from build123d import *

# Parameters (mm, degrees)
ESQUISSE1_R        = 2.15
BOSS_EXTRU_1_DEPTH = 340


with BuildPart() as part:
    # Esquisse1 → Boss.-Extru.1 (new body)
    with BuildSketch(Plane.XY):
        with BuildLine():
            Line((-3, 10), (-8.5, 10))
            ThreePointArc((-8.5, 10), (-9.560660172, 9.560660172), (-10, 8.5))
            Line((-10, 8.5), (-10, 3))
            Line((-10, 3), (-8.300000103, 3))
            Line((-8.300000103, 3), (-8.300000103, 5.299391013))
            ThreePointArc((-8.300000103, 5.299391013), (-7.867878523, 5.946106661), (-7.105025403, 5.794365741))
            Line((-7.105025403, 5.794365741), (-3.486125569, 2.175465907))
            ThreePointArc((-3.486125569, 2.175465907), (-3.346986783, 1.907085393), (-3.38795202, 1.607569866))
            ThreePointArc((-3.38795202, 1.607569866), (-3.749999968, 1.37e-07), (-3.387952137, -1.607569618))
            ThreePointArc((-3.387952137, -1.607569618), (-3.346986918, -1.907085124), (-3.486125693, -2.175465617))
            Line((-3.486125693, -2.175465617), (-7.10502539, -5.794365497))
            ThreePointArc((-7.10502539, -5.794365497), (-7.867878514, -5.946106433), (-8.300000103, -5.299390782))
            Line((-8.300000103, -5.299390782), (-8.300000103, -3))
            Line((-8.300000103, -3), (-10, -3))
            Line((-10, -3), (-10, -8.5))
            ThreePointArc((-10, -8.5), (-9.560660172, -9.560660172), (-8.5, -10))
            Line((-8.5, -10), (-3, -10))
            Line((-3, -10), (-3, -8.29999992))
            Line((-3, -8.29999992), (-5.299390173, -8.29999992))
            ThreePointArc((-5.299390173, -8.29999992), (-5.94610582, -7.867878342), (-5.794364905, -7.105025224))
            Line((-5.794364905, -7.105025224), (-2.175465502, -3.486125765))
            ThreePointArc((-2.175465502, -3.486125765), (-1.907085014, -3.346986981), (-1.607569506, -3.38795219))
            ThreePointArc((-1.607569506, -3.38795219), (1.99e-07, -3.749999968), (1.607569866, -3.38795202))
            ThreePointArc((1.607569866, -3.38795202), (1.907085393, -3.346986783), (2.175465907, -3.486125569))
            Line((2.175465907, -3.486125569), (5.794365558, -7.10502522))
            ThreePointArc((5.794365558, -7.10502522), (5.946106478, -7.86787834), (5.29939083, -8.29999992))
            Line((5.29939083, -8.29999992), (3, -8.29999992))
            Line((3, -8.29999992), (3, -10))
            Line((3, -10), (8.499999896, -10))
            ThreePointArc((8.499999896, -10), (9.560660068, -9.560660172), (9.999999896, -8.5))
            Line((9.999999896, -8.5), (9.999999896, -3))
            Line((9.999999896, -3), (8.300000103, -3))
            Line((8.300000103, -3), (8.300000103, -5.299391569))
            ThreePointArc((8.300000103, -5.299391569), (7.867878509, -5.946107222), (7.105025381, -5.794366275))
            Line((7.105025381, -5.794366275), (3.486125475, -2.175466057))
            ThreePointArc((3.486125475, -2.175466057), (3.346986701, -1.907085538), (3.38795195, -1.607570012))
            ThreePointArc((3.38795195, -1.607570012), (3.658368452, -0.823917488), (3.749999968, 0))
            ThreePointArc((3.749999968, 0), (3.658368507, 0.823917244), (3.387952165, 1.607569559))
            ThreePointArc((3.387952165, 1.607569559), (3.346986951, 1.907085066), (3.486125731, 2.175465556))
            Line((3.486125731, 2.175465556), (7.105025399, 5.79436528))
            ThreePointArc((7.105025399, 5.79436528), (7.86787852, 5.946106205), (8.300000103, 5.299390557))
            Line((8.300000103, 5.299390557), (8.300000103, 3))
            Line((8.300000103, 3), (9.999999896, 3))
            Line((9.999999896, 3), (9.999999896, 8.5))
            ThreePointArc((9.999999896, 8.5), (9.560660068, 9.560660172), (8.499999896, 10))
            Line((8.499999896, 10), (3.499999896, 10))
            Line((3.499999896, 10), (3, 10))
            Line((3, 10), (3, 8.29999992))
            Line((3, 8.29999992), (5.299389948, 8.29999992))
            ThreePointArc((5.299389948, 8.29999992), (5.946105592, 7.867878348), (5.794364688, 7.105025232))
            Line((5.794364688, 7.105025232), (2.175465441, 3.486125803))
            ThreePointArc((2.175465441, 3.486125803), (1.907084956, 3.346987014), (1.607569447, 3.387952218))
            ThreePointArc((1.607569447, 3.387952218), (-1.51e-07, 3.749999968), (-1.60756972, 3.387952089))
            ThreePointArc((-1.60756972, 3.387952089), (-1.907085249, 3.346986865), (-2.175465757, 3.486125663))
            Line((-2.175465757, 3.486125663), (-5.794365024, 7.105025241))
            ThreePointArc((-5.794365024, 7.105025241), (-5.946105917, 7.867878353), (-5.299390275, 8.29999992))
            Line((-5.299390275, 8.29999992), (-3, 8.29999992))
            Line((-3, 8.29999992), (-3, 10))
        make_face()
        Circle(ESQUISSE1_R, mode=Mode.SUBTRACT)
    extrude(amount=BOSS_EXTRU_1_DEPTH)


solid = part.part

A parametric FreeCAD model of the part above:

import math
import FreeCAD as App
import Part
import Sketcher

doc = App.newDocument("Part")
body = doc.addObject("PartDesign::Body", "Body")

# Sketch on XY plane
sketch1 = body.newObject("Sketcher::SketchObject", "Sketch")
sketch1.AttachmentSupport = (doc.getObject("XY_Plane"), [""])
sketch1.MapMode = "FlatFace"
sketch1.addGeometry([
    Part.LineSegment(App.Vector(-3, 10, 0), App.Vector(-8.5, 10, 0)),  # 0
    Part.ArcOfCircle(Part.Circle(App.Vector(-8.5, 8.5, 0), App.Vector(0, 0, 1), 1.5), math.radians(90), math.radians(180)),  # 1
    Part.LineSegment(App.Vector(-10, 8.5, 0), App.Vector(-10, 3, 0)),  # 2
    Part.LineSegment(App.Vector(-10, 3, 0), App.Vector(-8.3, 3, 0)),  # 3
    Part.LineSegment(App.Vector(-8.3, 3, 0), App.Vector(-8.3, 5.3, 0)),  # 4
    Part.ArcOfCircle(Part.Circle(App.Vector(-7.6, 5.3, 0), App.Vector(0, 0, 1), 0.7), math.radians(45), math.radians(180)),  # 5
    Part.LineSegment(App.Vector(-7.11, 5.79, 0), App.Vector(-3.49, 2.18, 0)),  # 6
    Part.ArcOfCircle(Part.Circle(App.Vector(-3.84, 1.82, 0), App.Vector(0, 0, 1), 0.5), math.radians(-25), math.radians(45)),  # 7
    Part.ArcOfCircle(Part.Circle(App.Vector(0, 0, 0), App.Vector(0, 0, 1), 3.75), math.radians(155), math.radians(205)),  # 8
    Part.ArcOfCircle(Part.Circle(App.Vector(-3.84, -1.82, 0), App.Vector(0, 0, 1), 0.5), math.radians(-45), math.radians(25)),  # 9
    Part.LineSegment(App.Vector(-3.49, -2.18, 0), App.Vector(-7.11, -5.79, 0)),  # 10
    Part.ArcOfCircle(Part.Circle(App.Vector(-7.6, -5.3, 0), App.Vector(0, 0, 1), 0.7), math.radians(180), math.radians(315)),  # 11
    Part.LineSegment(App.Vector(-8.3, -5.3, 0), App.Vector(-8.3, -3, 0)),  # 12
    Part.LineSegment(App.Vector(-8.3, -3, 0), App.Vector(-10, -3, 0)),  # 13
    Part.LineSegment(App.Vector(-10, -3, 0), App.Vector(-10, -8.5, 0)),  # 14
    Part.ArcOfCircle(Part.Circle(App.Vector(-8.5, -8.5, 0), App.Vector(0, 0, 1), 1.5), math.radians(180), math.radians(270)),  # 15
    Part.LineSegment(App.Vector(-8.5, -10, 0), App.Vector(-3, -10, 0)),  # 16
    Part.LineSegment(App.Vector(-3, -10, 0), App.Vector(-3, -8.3, 0)),  # 17
    Part.LineSegment(App.Vector(-3, -8.3, 0), App.Vector(-5.3, -8.3, 0)),  # 18
    Part.ArcOfCircle(Part.Circle(App.Vector(-5.3, -7.6, 0), App.Vector(0, 0, 1), 0.7), math.radians(135), math.radians(270)),  # 19
    Part.LineSegment(App.Vector(-5.79, -7.11, 0), App.Vector(-2.18, -3.49, 0)),  # 20
    Part.ArcOfCircle(Part.Circle(App.Vector(-1.82, -3.84, 0), App.Vector(0, 0, 1), 0.5), math.radians(65), math.radians(135)),  # 21
    Part.ArcOfCircle(Part.Circle(App.Vector(0, 0, 0), App.Vector(0, 0, 1), 3.75), math.radians(-115), math.radians(-65)),  # 22
    Part.ArcOfCircle(Part.Circle(App.Vector(1.82, -3.84, 0), App.Vector(0, 0, 1), 0.5), math.radians(45), math.radians(115)),  # 23
    Part.LineSegment(App.Vector(2.18, -3.49, 0), App.Vector(5.79, -7.11, 0)),  # 24
    Part.ArcOfCircle(Part.Circle(App.Vector(5.3, -7.6, 0), App.Vector(0, 0, 1), 0.7), math.radians(-90), math.radians(45)),  # 25
    Part.LineSegment(App.Vector(5.3, -8.3, 0), App.Vector(3, -8.3, 0)),  # 26
    Part.LineSegment(App.Vector(3, -8.3, 0), App.Vector(3, -10, 0)),  # 27
    Part.LineSegment(App.Vector(3, -10, 0), App.Vector(8.5, -10, 0)),  # 28
    Part.ArcOfCircle(Part.Circle(App.Vector(8.5, -8.5, 0), App.Vector(0, 0, 1), 1.5), math.radians(-90), math.radians(0)),  # 29
    Part.LineSegment(App.Vector(10, -8.5, 0), App.Vector(10, -3, 0)),  # 30
    Part.LineSegment(App.Vector(10, -3, 0), App.Vector(8.3, -3, 0)),  # 31
    Part.LineSegment(App.Vector(8.3, -3, 0), App.Vector(8.3, -5.3, 0)),  # 32
    Part.ArcOfCircle(Part.Circle(App.Vector(7.6, -5.3, 0), App.Vector(0, 0, 1), 0.7), math.radians(-135), math.radians(0)),  # 33
    Part.LineSegment(App.Vector(7.11, -5.79, 0), App.Vector(3.49, -2.18, 0)),  # 34
    Part.ArcOfCircle(Part.Circle(App.Vector(3.84, -1.82, 0), App.Vector(0, 0, 1), 0.5), math.radians(155), math.radians(225)),  # 35
    Part.ArcOfCircle(Part.Circle(App.Vector(0, 0, 0), App.Vector(0, 0, 1), 3.75), math.radians(-25), math.radians(0)),  # 36
    Part.ArcOfCircle(Part.Circle(App.Vector(0, 0, 0), App.Vector(0, 0, 1), 3.75), math.radians(0), math.radians(25)),  # 37
    Part.ArcOfCircle(Part.Circle(App.Vector(3.84, 1.82, 0), App.Vector(0, 0, 1), 0.5), math.radians(135), math.radians(205)),  # 38
    Part.LineSegment(App.Vector(3.49, 2.18, 0), App.Vector(7.11, 5.79, 0)),  # 39
    Part.ArcOfCircle(Part.Circle(App.Vector(7.6, 5.3, 0), App.Vector(0, 0, 1), 0.7), math.radians(0), math.radians(135)),  # 40
    Part.LineSegment(App.Vector(8.3, 5.3, 0), App.Vector(8.3, 3, 0)),  # 41
    Part.LineSegment(App.Vector(8.3, 3, 0), App.Vector(10, 3, 0)),  # 42
    Part.LineSegment(App.Vector(10, 3, 0), App.Vector(10, 8.5, 0)),  # 43
    Part.ArcOfCircle(Part.Circle(App.Vector(8.5, 8.5, 0), App.Vector(0, 0, 1), 1.5), math.radians(0), math.radians(90)),  # 44
    Part.LineSegment(App.Vector(8.5, 10, 0), App.Vector(3, 10, 0)),  # 45
    Part.LineSegment(App.Vector(3, 10, 0), App.Vector(3, 8.3, 0)),  # 46
    Part.LineSegment(App.Vector(3, 8.3, 0), App.Vector(5.3, 8.3, 0)),  # 47
    Part.ArcOfCircle(Part.Circle(App.Vector(5.3, 7.6, 0), App.Vector(0, 0, 1), 0.7), math.radians(-45), math.radians(90)),  # 48
    Part.LineSegment(App.Vector(5.79, 7.11, 0), App.Vector(2.18, 3.49, 0)),  # 49
    Part.ArcOfCircle(Part.Circle(App.Vector(1.82, 3.84, 0), App.Vector(0, 0, 1), 0.5), math.radians(-115), math.radians(-45)),  # 50
    Part.ArcOfCircle(Part.Circle(App.Vector(0, 0, 0), App.Vector(0, 0, 1), 3.75), math.radians(65), math.radians(115)),  # 51
    Part.ArcOfCircle(Part.Circle(App.Vector(-1.82, 3.84, 0), App.Vector(0, 0, 1), 0.5), math.radians(-135), math.radians(-65)),  # 52
    Part.LineSegment(App.Vector(-2.18, 3.49, 0), App.Vector(-5.79, 7.11, 0)),  # 53
    Part.ArcOfCircle(Part.Circle(App.Vector(-5.3, 7.6, 0), App.Vector(0, 0, 1), 0.7), math.radians(90), math.radians(225)),  # 54
    Part.LineSegment(App.Vector(-5.3, 8.3, 0), App.Vector(-3, 8.3, 0)),  # 55
    Part.LineSegment(App.Vector(-3, 8.3, 0), App.Vector(-3, 10, 0)),  # 56
    Part.Circle(App.Vector(0, 0, 0), App.Vector(0, 0, 1), 2.15),  # 57
], False)
sketch1.addConstraint([
    Sketcher.Constraint("Tangent", 0, 2, 1, 1),
    Sketcher.Constraint("Tangent", 1, 2, 2, 1),
    Sketcher.Constraint("Coincident", 2, 2, 3, 1),
    Sketcher.Constraint("Coincident", 3, 2, 4, 1),
    Sketcher.Constraint("Tangent", 4, 2, 5, 2),
    Sketcher.Constraint("Tangent", 5, 1, 6, 1),
    Sketcher.Constraint("Tangent", 6, 2, 7, 2),
    Sketcher.Constraint("Tangent", 7, 1, 8, 1),
    Sketcher.Constraint("Tangent", 8, 2, 9, 2),
    Sketcher.Constraint("Tangent", 9, 1, 10, 1),
    Sketcher.Constraint("Tangent", 10, 2, 11, 2),
    Sketcher.Constraint("Tangent", 11, 1, 12, 1),
    Sketcher.Constraint("Coincident", 12, 2, 13, 1),
    Sketcher.Constraint("Coincident", 13, 2, 14, 1),
    Sketcher.Constraint("Tangent", 14, 2, 15, 1),
    Sketcher.Constraint("Tangent", 15, 2, 16, 1),
    Sketcher.Constraint("Coincident", 16, 2, 17, 1),
    Sketcher.Constraint("Coincident", 17, 2, 18, 1),
    Sketcher.Constraint("Tangent", 18, 2, 19, 2),
    Sketcher.Constraint("Tangent", 19, 1, 20, 1),
    Sketcher.Constraint("Tangent", 20, 2, 21, 2),
    Sketcher.Constraint("Tangent", 21, 1, 22, 1),
    Sketcher.Constraint("Tangent", 22, 2, 23, 2),
    Sketcher.Constraint("Tangent", 23, 1, 24, 1),
    Sketcher.Constraint("Tangent", 24, 2, 25, 2),
    Sketcher.Constraint("Tangent", 25, 1, 26, 1),
    Sketcher.Constraint("Coincident", 26, 2, 27, 1),
    Sketcher.Constraint("Coincident", 27, 2, 28, 1),
    Sketcher.Constraint("Tangent", 28, 2, 29, 1),
    Sketcher.Constraint("Tangent", 29, 2, 30, 1),
    Sketcher.Constraint("Coincident", 30, 2, 31, 1),
    Sketcher.Constraint("Coincident", 31, 2, 32, 1),
    Sketcher.Constraint("Tangent", 32, 2, 33, 2),
    Sketcher.Constraint("Tangent", 33, 1, 34, 1),
    Sketcher.Constraint("Tangent", 34, 2, 35, 2),
    Sketcher.Constraint("Tangent", 35, 1, 36, 1),
    Sketcher.Constraint("Tangent", 36, 2, 37, 1),
    Sketcher.Constraint("Tangent", 37, 2, 38, 2),
    Sketcher.Constraint("Tangent", 38, 1, 39, 1),
    Sketcher.Constraint("Tangent", 39, 2, 40, 2),
    Sketcher.Constraint("Tangent", 40, 1, 41, 1),
    Sketcher.Constraint("Coincident", 41, 2, 42, 1),
    Sketcher.Constraint("Coincident", 42, 2, 43, 1),
    Sketcher.Constraint("Tangent", 43, 2, 44, 1),
    Sketcher.Constraint("Tangent", 44, 2, 45, 1),
    Sketcher.Constraint("Coincident", 45, 2, 46, 1),
    Sketcher.Constraint("Coincident", 46, 2, 47, 1),
    Sketcher.Constraint("Tangent", 47, 2, 48, 2),
    Sketcher.Constraint("Tangent", 48, 1, 49, 1),
    Sketcher.Constraint("Tangent", 49, 2, 50, 2),
    Sketcher.Constraint("Tangent", 50, 1, 51, 1),
    Sketcher.Constraint("Tangent", 51, 2, 52, 2),
    Sketcher.Constraint("Tangent", 52, 1, 53, 1),
    Sketcher.Constraint("Tangent", 53, 2, 54, 2),
    Sketcher.Constraint("Tangent", 54, 1, 55, 1),
    Sketcher.Constraint("Coincident", 55, 2, 56, 1),
    Sketcher.Constraint("Coincident", 56, 2, 0, 1),
    Sketcher.Constraint("Horizontal", 0),
    Sketcher.Constraint("Vertical", 2),
    Sketcher.Constraint("Horizontal", 3),
    Sketcher.Constraint("Vertical", 4),
    Sketcher.Constraint("Vertical", 12),
    Sketcher.Constraint("Horizontal", 13),
    Sketcher.Constraint("Vertical", 14),
    Sketcher.Constraint("Horizontal", 16),
    Sketcher.Constraint("Vertical", 17),
    Sketcher.Constraint("Horizontal", 18),
    Sketcher.Constraint("Horizontal", 26),
    Sketcher.Constraint("Vertical", 27),
    Sketcher.Constraint("Horizontal", 28),
    Sketcher.Constraint("Vertical", 30),
    Sketcher.Constraint("Horizontal", 31),
    Sketcher.Constraint("Vertical", 32),
    Sketcher.Constraint("Vertical", 41),
    Sketcher.Constraint("Horizontal", 42),
    Sketcher.Constraint("Vertical", 43),
    Sketcher.Constraint("Horizontal", 45),
    Sketcher.Constraint("Vertical", 46),
    Sketcher.Constraint("Horizontal", 47),
    Sketcher.Constraint("Horizontal", 55),
    Sketcher.Constraint("Vertical", 56),
    Sketcher.Constraint("Coincident", 8, 3, -1, 1),
    Sketcher.Constraint("Coincident", 22, 3, -1, 1),
    Sketcher.Constraint("Coincident", 36, 3, -1, 1),
    Sketcher.Constraint("Coincident", 51, 3, -1, 1),
    Sketcher.Constraint("Coincident", 57, 3, -1, 1),
    Sketcher.Constraint("Equal", 7, 9),
    Sketcher.Constraint("Equal", 5, 11),
    Sketcher.Constraint("Equal", 1, 15),
    Sketcher.Constraint("Equal", 11, 19),
    Sketcher.Constraint("Equal", 9, 21),
    Sketcher.Constraint("Equal", 8, 22),
    Sketcher.Constraint("Equal", 21, 23),
    Sketcher.Constraint("Equal", 19, 25),
    Sketcher.Constraint("Equal", 15, 29),
    Sketcher.Constraint("Equal", 25, 33),
    Sketcher.Constraint("Equal", 23, 35),
    Sketcher.Constraint("Equal", 22, 36),
    Sketcher.Constraint("Equal", 36, 37),
    Sketcher.Constraint("Equal", 35, 38),
    Sketcher.Constraint("Equal", 33, 40),
    Sketcher.Constraint("Equal", 29, 44),
    Sketcher.Constraint("Equal", 40, 48),
    Sketcher.Constraint("Equal", 38, 50),
    Sketcher.Constraint("Equal", 37, 51),
    Sketcher.Constraint("Equal", 50, 52),
    Sketcher.Constraint("Equal", 48, 54),
    Sketcher.Constraint("Symmetric", 1, 3, 29, 3, -1, 1),
    Sketcher.Constraint("Symmetric", 5, 3, 33, 3, -1, 1),
    Sketcher.Constraint("Symmetric", 11, 3, 40, 3, -1, 1),
    Sketcher.Constraint("Symmetric", 15, 3, 44, 3, -1, 1),
    Sketcher.Constraint("Symmetric", 19, 3, 48, 3, -1, 1),
    Sketcher.Constraint("Symmetric", 25, 3, 54, 3, -1, 1),
    Sketcher.Constraint("Symmetric", 19, 3, 25, 3, -2),
    Sketcher.Constraint("Symmetric", 15, 3, 29, 3, -2),
    Sketcher.Constraint("Symmetric", 11, 3, 33, 3, -2),
    Sketcher.Constraint("PointOnObject", 36, 2, -1),
    Sketcher.Constraint("Perpendicular", 6, 10),
    Sketcher.Constraint("Parallel", 10, 20),
    Sketcher.Constraint("Perpendicular", 20, 24),
    Sketcher.Constraint("Parallel", 24, 34),
    Sketcher.Constraint("Perpendicular", 34, 39),
    Sketcher.Constraint("Parallel", 39, 49),
    Sketcher.Constraint("Perpendicular", 49, 53),
    Sketcher.Constraint("Horizontal", 21, 3, 23, 3),
    Sketcher.Constraint("Horizontal", 13, 2, 30, 2),
    Sketcher.Constraint("Horizontal", 3, 2, 41, 2),
    Sketcher.Constraint("Vertical", 27, 2, 45, 2),
    Sketcher.Constraint("Vertical", 17, 2, 55, 2),
    Sketcher.Constraint("Equal", 18, 26),
    Sketcher.Constraint("Equal", 45, 2),
    Sketcher.Constraint("Equal", 55, 4),
    Sketcher.Constraint("Equal", 4, 12),
    Sketcher.Constraint("Equal", 42, 17),
    Sketcher.Constraint("Equal", 10, 20),
    Sketcher.Constraint("Diameter", 57, 4.3),
    Sketcher.Constraint("Radius", 1, 1.5),
    Sketcher.Constraint("Radius", 5, 0.7),
    Sketcher.Constraint("Radius", 7, 0.5),
    Sketcher.Constraint("Radius", 8, 3.75),
    Sketcher.Constraint("DistanceX", 0, 2, 0, 1, 5.5),
    Sketcher.Constraint("DistanceX", 3, 1, 3, 2, 1.7),
    Sketcher.Constraint("DistanceY", -1, 1, 0, 2, 10.0),
    Sketcher.Constraint("DistanceX", 18, 2, 18, 1, 2.29939),
])
pad1 = body.newObject("PartDesign::Pad", "Pad")
pad1.Profile = sketch1
pad1.Length = 340

doc.recompute()
